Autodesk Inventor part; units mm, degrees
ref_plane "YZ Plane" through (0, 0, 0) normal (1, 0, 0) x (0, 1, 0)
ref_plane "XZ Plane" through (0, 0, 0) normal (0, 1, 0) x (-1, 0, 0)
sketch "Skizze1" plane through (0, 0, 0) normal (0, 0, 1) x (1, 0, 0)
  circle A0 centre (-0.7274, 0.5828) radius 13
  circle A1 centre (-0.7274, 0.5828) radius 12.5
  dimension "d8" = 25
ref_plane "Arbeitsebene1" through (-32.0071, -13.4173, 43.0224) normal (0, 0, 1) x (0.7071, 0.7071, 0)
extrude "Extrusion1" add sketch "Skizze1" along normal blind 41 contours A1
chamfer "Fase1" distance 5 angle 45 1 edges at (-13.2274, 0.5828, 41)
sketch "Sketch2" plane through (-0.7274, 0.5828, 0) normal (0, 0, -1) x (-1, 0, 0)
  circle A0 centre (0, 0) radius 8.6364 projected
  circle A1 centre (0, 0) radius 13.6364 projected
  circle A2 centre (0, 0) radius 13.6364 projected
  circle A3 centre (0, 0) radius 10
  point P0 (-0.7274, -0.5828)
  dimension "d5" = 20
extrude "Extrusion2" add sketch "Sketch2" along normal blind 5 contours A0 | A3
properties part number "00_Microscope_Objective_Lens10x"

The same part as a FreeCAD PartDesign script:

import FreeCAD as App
import Part
import Sketcher

V = App.Vector
Q = App.Units.Quantity


def edges_at(feature, points):
    """Names of the edges that pass closest to the given points."""
    edges = feature.Shape.Edges
    near = lambda p: min(range(len(edges)), key=lambda i: edges[i].distToShape(Part.Vertex(*p))[0])
    return sorted({f"Edge{near(p) + 1}" for p in points})

doc = App.newDocument("Part")
body = doc.addObject("PartDesign::Body", "Body")

sketch1 = body.newObject("Sketcher::SketchObject", "Sketch")
sketch1.AttachmentSupport = (doc.getObject("XY_Plane"), [""])
sketch1.MapMode = "FlatFace"
sketch1.addGeometry(Part.Circle(V(-1, 1, 0), V(0, 0, 1), 12), False)
sketch1.addConstraint([
    Sketcher.Constraint("Diameter", 0, Q("25 mm")),
    Sketcher.Constraint("DistanceX", 0, 3, -1, 1, Q("0.7274 mm")),
    Sketcher.Constraint("DistanceY", -1, 1, 0, 3, Q("0.5828 mm")),
])
pad1 = body.newObject("PartDesign::Pad", "Pad")
pad1.Profile = sketch1
pad1.Length = 41
doc.recompute()

chamfer = body.newObject("PartDesign::Chamfer", "Chamfer")
chamfer.Base = (pad1, edges_at(pad1, [(-13.227, 0.583, 41)]))
chamfer.Size = 5

sketch2 = body.newObject("Sketcher::SketchObject", "Sketch001")
sketch2.AttachmentSupport = (doc.getObject("XY_Plane"), [""])
sketch2.MapMode = "FlatFace"
sketch2.addGeometry(Part.Circle(V(-1, 1, 0), V(0, 0, 1), 10), False)
sketch2.addConstraint([
    Sketcher.Constraint("Diameter", 0, Q("20 mm")),
    Sketcher.Constraint("DistanceX", 0, 3, -1, 1, Q("0.7274 mm")),
    Sketcher.Constraint("DistanceY", -1, 1, 0, 3, Q("0.5828 mm")),
])
pad2 = body.newObject("PartDesign::Pad", "Pad001")
pad2.Profile = sketch2
pad2.Length = 5
pad2.Reversed = True

doc.recompute()
